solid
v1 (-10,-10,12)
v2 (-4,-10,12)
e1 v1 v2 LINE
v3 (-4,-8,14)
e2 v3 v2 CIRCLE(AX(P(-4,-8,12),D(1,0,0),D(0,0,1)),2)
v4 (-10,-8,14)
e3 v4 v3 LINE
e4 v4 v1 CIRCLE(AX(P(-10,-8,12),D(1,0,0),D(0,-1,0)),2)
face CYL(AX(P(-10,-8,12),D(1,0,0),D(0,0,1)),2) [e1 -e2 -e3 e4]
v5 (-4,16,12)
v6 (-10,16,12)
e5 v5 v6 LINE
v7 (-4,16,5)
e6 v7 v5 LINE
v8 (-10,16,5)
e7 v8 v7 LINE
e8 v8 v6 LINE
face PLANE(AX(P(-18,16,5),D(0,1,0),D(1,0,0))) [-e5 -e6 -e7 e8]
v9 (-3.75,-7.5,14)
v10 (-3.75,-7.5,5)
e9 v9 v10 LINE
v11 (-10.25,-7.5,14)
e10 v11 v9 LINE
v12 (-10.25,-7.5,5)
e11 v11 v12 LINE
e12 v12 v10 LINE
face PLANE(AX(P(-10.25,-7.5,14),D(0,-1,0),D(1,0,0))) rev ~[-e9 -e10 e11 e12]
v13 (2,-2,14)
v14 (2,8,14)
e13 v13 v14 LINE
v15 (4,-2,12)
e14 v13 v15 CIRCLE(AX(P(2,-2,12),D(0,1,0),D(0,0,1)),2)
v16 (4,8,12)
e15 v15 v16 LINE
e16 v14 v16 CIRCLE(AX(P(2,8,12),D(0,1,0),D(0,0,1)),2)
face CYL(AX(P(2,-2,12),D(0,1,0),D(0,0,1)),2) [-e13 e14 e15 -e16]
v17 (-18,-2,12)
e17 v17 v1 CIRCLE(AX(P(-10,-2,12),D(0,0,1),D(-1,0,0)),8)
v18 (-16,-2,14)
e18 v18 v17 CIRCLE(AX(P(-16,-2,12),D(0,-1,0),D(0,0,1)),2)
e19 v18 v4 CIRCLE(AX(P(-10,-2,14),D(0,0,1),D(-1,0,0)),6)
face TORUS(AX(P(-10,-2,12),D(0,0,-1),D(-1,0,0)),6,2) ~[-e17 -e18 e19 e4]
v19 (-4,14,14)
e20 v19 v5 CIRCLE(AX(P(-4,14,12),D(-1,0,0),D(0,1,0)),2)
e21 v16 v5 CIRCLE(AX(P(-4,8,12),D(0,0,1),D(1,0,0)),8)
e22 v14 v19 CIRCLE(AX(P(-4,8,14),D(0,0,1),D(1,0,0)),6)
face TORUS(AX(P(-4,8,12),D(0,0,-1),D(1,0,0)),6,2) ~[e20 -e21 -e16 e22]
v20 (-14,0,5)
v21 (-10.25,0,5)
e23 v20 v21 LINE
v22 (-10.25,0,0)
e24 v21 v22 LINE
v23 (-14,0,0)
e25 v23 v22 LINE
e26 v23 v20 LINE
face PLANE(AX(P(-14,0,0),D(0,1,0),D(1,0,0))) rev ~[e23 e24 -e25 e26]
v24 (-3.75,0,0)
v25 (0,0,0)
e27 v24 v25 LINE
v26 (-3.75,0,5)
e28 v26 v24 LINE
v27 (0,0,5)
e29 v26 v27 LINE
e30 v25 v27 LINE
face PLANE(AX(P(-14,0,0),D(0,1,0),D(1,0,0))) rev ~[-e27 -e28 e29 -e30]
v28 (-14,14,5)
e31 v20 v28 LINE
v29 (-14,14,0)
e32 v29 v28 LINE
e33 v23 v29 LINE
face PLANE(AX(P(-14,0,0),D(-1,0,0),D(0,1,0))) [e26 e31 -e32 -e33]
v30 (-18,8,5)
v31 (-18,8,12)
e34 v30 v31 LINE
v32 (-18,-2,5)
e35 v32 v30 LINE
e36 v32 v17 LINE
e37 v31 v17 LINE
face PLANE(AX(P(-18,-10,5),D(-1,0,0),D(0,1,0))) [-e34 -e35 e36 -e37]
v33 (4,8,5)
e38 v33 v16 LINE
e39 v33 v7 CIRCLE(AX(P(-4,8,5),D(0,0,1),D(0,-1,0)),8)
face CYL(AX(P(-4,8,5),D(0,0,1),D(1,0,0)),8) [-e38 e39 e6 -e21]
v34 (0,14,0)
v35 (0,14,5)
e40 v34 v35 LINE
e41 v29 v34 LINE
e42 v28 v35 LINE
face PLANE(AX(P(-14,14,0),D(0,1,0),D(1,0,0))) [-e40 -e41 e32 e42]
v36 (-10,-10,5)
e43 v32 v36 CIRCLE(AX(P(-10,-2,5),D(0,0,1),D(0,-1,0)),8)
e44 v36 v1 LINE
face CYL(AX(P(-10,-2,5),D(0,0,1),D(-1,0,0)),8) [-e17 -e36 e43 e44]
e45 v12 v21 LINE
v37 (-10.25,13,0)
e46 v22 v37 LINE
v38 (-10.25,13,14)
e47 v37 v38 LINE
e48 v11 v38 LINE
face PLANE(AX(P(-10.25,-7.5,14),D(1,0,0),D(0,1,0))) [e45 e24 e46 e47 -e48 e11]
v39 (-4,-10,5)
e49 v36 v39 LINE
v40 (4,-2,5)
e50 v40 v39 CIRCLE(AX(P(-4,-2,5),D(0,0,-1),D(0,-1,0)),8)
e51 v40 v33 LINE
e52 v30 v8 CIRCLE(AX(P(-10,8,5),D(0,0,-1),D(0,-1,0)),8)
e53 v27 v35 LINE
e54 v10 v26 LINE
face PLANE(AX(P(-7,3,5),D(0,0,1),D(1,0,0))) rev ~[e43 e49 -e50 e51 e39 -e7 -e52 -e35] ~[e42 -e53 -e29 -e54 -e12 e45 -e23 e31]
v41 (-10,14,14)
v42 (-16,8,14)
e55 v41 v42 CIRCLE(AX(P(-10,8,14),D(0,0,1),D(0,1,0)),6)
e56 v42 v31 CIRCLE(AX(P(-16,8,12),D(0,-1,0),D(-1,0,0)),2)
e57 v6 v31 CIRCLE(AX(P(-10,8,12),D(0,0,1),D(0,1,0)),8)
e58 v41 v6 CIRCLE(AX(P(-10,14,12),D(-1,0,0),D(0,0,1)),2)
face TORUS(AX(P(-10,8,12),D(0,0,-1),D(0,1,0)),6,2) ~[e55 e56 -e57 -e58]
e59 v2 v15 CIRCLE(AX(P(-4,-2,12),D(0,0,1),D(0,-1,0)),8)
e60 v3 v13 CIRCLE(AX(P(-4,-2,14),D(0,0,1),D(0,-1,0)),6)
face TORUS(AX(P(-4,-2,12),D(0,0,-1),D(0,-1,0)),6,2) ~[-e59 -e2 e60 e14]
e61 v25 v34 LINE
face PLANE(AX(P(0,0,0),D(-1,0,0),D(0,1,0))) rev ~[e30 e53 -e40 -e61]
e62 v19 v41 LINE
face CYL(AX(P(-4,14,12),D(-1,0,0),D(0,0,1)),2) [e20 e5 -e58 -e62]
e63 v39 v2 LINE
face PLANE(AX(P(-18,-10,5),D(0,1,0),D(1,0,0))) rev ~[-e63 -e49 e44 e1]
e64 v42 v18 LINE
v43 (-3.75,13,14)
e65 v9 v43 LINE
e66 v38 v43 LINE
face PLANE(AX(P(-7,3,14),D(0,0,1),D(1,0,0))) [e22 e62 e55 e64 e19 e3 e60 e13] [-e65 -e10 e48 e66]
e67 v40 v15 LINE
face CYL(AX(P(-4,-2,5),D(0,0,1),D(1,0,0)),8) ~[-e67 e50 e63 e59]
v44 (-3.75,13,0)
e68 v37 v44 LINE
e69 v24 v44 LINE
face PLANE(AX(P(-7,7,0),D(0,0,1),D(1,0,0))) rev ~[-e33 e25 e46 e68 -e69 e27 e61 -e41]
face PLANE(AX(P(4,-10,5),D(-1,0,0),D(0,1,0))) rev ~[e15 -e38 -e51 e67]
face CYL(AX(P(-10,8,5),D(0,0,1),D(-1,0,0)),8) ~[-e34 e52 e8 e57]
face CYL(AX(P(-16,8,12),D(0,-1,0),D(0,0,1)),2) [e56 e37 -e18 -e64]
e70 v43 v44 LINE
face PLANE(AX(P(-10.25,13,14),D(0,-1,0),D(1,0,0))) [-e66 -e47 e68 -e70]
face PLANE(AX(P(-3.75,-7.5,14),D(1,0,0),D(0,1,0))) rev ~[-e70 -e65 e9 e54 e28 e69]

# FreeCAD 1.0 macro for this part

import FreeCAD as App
import Part
import Sketcher


def edges_at(feature, points):
    """Names of the edges that pass closest to the given points."""
    edges = feature.Shape.Edges
    near = lambda p: min(range(len(edges)), key=lambda i: edges[i].distToShape(Part.Vertex(*p))[0])
    return sorted({f"Edge{near(p) + 1}" for p in points})


def add_polygon(sketch, points):
    """Adds a closed chain of lines whose ends are joined by coincident constraints."""
    first, n = sketch.GeometryCount, len(points)
    for a, b in zip(points, points[1:] + points[:1]):
        sketch.addGeometry(Part.LineSegment(App.Vector(*a, 0), App.Vector(*b, 0)), False)
    for i in range(n):
        sketch.addConstraint(Sketcher.Constraint("Coincident", first + i, 2, first + (i + 1) % n, 1))

doc = App.newDocument("Part")
body = doc.addObject("PartDesign::Body", "Body")

# Sketch on XY plane
sketch1 = doc.addObject("Sketcher::SketchObject", "Sketch")
body.addObject(sketch1)
sketch1.AttachmentSupport = (doc.XY_Plane, [""])
sketch1.MapMode = "FlatFace"
add_polygon(sketch1, [(-14, 14), (-14, 0), (0, 0), (0, 14)])  # lines 0-3
sketch1.addConstraint(Sketcher.Constraint("Vertical", 0))
sketch1.addConstraint(Sketcher.Constraint("Horizontal", 1))
sketch1.addConstraint(Sketcher.Constraint("Vertical", 2))
sketch1.addConstraint(Sketcher.Constraint("Horizontal", 3))
sketch1.addConstraint(Sketcher.Constraint("Coincident", 1, 2, -1, 1))
sketch1.addConstraint(Sketcher.Constraint("Equal", 3, 0))
sketch1.addConstraint(Sketcher.Constraint("DistanceX", 1, 1, 1, 2, 14.0))
pad1 = doc.addObject("PartDesign::Pad", "Pad")
body.addObject(pad1)
pad1.Profile = sketch1
pad1.Length = 5

# Sketch on XY plane
sketch2 = doc.addObject("Sketcher::SketchObject", "Sketch001")
body.addObject(sketch2)
sketch2.AttachmentSupport = (doc.XY_Plane, [""])
sketch2.MapMode = "FlatFace"
sketch2.AttachmentOffset = App.Placement(App.Vector(0, 0, 5), App.Rotation())
add_polygon(sketch2, [(-18, 16), (-18, -10), (4, -10), (4, 16)])  # lines 0-3
sketch2.addConstraint(Sketcher.Constraint("Vertical", 0))
sketch2.addConstraint(Sketcher.Constraint("Horizontal", 1))
sketch2.addConstraint(Sketcher.Constraint("Vertical", 2))
sketch2.addConstraint(Sketcher.Constraint("Horizontal", 3))
sketch2.addConstraint(Sketcher.Constraint("DistanceX", 1, 1, 1, 2, 22.0))
sketch2.addConstraint(Sketcher.Constraint("DistanceY", 0, 2, 0, 1, 26.0))
sketch2.addConstraint(Sketcher.Constraint("DistanceX", 0, 2, -1, 1, 18.0))
sketch2.addConstraint(Sketcher.Constraint("DistanceY", 0, 2, -1, 1, 10.0))
pad2 = doc.addObject("PartDesign::Pad", "Pad001")
body.addObject(pad2)
pad2.Profile = sketch2
pad2.Length = 9

# Sketch on XY plane
sketch3 = doc.addObject("Sketcher::SketchObject", "Sketch002")
body.addObject(sketch3)
sketch3.AttachmentSupport = (doc.XY_Plane, [""])
sketch3.MapMode = "FlatFace"
sketch3.AttachmentOffset = App.Placement(App.Vector(0, 0, 14), App.Rotation())
add_polygon(sketch3, [(-10, 13), (-10, -8), (-4, -8), (-4, 13)])  # lines 0-3
sketch3.addConstraint(Sketcher.Constraint("Vertical", 0))
sketch3.addConstraint(Sketcher.Constraint("Horizontal", 1))
sketch3.addConstraint(Sketcher.Constraint("Vertical", 2))
sketch3.addConstraint(Sketcher.Constraint("Horizontal", 3))
sketch3.addConstraint(Sketcher.Constraint("DistanceX", 1, 1, 1, 2, 6.5))
sketch3.addConstraint(Sketcher.Constraint("DistanceY", 0, 2, 0, 1, 20.5))
sketch3.addConstraint(Sketcher.Constraint("DistanceY", -1, 1, 2, 2, 13.0))
sketch3.addConstraint(Sketcher.Constraint("DistanceX", 0, 2, -1, 1, 10.25))
pocket1 = doc.addObject("PartDesign::Pocket", "Pocket")
body.addObject(pocket1)
pocket1.Profile = sketch3
pocket1.Length = 9

# Sketch on XY plane
sketch4 = doc.addObject("Sketcher::SketchObject", "Sketch003")
body.addObject(sketch4)
sketch4.AttachmentSupport = (doc.XY_Plane, [""])
sketch4.MapMode = "FlatFace"
sketch4.AttachmentOffset = App.Placement(App.Vector(0, 0, 5), App.Rotation())
add_polygon(sketch4, [(-10, 13), (-10, 0), (-4, 0), (-4, 13)])  # lines 0-3
sketch4.addConstraint(Sketcher.Constraint("Vertical", 0))
sketch4.addConstraint(Sketcher.Constraint("Horizontal", 1))
sketch4.addConstraint(Sketcher.Constraint("Vertical", 2))
sketch4.addConstraint(Sketcher.Constraint("Horizontal", 3))
sketch4.addConstraint(Sketcher.Constraint("PointOnObject", 0, 2, -1))
sketch4.addConstraint(Sketcher.Constraint("DistanceY", 0, 2, 0, 1, 13.0))
sketch4.addConstraint(Sketcher.Constraint("DistanceX", 1, 1, 1, 2, 6.5))
sketch4.addConstraint(Sketcher.Constraint("DistanceX", 0, 2, -1, 1, 10.25))
pocket2 = doc.addObject("PartDesign::Pocket", "Pocket001")
body.addObject(pocket2)
pocket2.Profile = sketch4
pocket2.Type = "ThroughAll"
doc.recompute()

fillet = doc.addObject("PartDesign::Fillet", "Fillet")
body.addObject(fillet)
fillet.Base = (pocket2, edges_at(pocket2, [
    (4, -10, 9.5),
    (4, 16, 9.5),
    (-18, 16, 9.5),
    (-18, -10, 9.5),
]))
fillet.Radius = 8
doc.recompute()

fillet2 = doc.addObject("PartDesign::Fillet", "Fillet001")
body.addObject(fillet2)
fillet2.Base = (fillet, edges_at(fillet, [(4, 3, 14), (1.657, 13.657, 14)]))
fillet2.Radius = 2

doc.recompute()
